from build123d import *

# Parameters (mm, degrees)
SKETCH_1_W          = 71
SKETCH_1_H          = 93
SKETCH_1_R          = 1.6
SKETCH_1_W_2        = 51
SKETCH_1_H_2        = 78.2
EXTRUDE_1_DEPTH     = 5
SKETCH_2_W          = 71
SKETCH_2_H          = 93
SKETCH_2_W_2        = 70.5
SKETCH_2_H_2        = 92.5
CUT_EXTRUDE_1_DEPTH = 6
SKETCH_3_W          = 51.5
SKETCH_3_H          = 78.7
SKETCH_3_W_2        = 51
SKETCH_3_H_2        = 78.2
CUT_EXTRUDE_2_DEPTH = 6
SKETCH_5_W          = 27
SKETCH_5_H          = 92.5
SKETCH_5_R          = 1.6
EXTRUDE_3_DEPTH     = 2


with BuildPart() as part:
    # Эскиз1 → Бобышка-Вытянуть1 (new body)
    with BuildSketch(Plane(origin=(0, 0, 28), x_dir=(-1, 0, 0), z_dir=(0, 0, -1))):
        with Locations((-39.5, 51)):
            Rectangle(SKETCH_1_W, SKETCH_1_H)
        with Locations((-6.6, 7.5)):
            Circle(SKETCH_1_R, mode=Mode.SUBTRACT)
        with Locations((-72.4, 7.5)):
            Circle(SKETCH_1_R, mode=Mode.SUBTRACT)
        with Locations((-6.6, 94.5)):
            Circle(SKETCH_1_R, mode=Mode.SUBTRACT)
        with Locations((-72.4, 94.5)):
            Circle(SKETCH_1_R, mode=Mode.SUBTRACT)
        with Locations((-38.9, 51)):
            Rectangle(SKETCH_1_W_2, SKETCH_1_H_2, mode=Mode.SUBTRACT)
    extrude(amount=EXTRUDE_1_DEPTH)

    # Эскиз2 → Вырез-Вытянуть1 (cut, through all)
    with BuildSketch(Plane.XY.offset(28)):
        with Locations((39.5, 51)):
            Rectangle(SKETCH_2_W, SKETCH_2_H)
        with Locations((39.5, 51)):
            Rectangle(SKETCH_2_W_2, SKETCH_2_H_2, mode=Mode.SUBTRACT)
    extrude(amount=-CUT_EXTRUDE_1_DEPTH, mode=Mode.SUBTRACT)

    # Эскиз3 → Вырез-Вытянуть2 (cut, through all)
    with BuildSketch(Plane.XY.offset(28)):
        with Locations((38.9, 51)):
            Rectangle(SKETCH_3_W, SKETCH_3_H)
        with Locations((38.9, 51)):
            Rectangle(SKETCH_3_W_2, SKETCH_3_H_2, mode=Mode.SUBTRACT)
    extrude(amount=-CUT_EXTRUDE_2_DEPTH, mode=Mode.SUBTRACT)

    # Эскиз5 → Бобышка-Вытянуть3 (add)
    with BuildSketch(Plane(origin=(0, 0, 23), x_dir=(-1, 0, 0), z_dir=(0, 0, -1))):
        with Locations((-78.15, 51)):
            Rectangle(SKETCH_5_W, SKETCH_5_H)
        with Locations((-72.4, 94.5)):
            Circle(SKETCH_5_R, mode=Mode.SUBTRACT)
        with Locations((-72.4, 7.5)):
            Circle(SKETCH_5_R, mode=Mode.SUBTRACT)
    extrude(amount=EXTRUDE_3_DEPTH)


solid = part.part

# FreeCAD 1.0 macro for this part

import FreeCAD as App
import Part
import Sketcher
Q = App.Units.Quantity

doc = App.newDocument("Part")
params = doc.addObject("Spreadsheet::Sheet", "Params")
for row, (alias, value) in enumerate([
    ("sketch1_diameter", "3.2 mm"),
    ("sketch1_width", "71 mm"),
    ("sketch1_width2", "51 mm"),
    ("sketch1_height", "93 mm"),
    ("sketch1_height2", "78.2 mm"),
    ("pad1_length", "5 mm"),
    ("sketch2_width", "71 mm"),
    ("sketch2_height", "93 mm"),
    ("sketch2_width2", "70.5 mm"),
    ("sketch2_height2", "92.5 mm"),
    ("sketch3_width", "51 mm"),
    ("sketch3_width2", "51.5 mm"),
    ("sketch3_height", "78.7 mm"),
    ("sketch3_height2", "78.2 mm"),
    ("sketch4_diameter", "3.2 mm"),
    ("sketch4_width", "27 mm"),
    ("sketch4_height", "92.5 mm"),
    ("pad2_length", "2 mm"),
], start=1):
    params.set(f"A{row}", alias)
    params.set(f"B{row}", "=" + value)
    params.setAlias(f"B{row}", alias)

body = doc.addObject("PartDesign::Body", "Body")

# Sketch on XY plane
sketch1 = body.newObject("Sketcher::SketchObject", "Sketch")
sketch1.AttachmentSupport = (doc.getObject("XY_Plane"), [""])
sketch1.MapMode = "FlatFace"
sketch1.AttachmentOffset = App.Placement(App.Vector(0, 0, 28), App.Rotation())
sketch1.addGeometry([
    Part.LineSegment(App.Vector(75, 97.5, 0), App.Vector(75, 4.5, 0)),  # 0
    Part.LineSegment(App.Vector(75, 4.5, 0), App.Vector(4, 4.5, 0)),  # 1
    Part.LineSegment(App.Vector(4, 4.5, 0), App.Vector(4, 97.5, 0)),  # 2
    Part.LineSegment(App.Vector(4, 97.5, 0), App.Vector(75, 97.5, 0)),  # 3
    Part.Circle(App.Vector(72.4, 7.5, 0), App.Vector(0, 0, 1), 1.6),  # 4
    Part.Circle(App.Vector(6.6, 7.5, 0), App.Vector(0, 0, 1), 1.6),  # 5
    Part.Circle(App.Vector(72.4, 94.5, 0), App.Vector(0, 0, 1), 1.6),  # 6
    Part.LineSegment(App.Vector(13.4, 11.9, 0), App.Vector(64.4, 11.9, 0)),  # 7
    Part.LineSegment(App.Vector(64.4, 11.9, 0), App.Vector(64.4, 90.1, 0)),  # 8
    Part.LineSegment(App.Vector(64.4, 90.1, 0), App.Vector(13.4, 90.1, 0)),  # 9
    Part.LineSegment(App.Vector(13.4, 90.1, 0), App.Vector(13.4, 11.9, 0)),  # 10
    Part.Circle(App.Vector(6.6, 94.5, 0), App.Vector(0, 0, 1), 1.6),  # 11
], False)
sketch1.addConstraint([
    Sketcher.Constraint("Coincident", 0, 2, 1, 1),
    Sketcher.Constraint("Coincident", 1, 2, 2, 1),
    Sketcher.Constraint("Coincident", 2, 2, 3, 1),
    Sketcher.Constraint("Coincident", 3, 2, 0, 1),
    Sketcher.Constraint("Coincident", 7, 2, 8, 1),
    Sketcher.Constraint("Coincident", 8, 2, 9, 1),
    Sketcher.Constraint("Coincident", 9, 2, 10, 1),
    Sketcher.Constraint("Coincident", 10, 2, 7, 1),
    Sketcher.Constraint("Vertical", 0),
    Sketcher.Constraint("Horizontal", 1),
    Sketcher.Constraint("Vertical", 2),
    Sketcher.Constraint("Horizontal", 3),
    Sketcher.Constraint("Horizontal", 7),
    Sketcher.Constraint("Vertical", 8),
    Sketcher.Constraint("Horizontal", 9),
    Sketcher.Constraint("Vertical", 10),
    Sketcher.Constraint("Equal", 4, 5),
    Sketcher.Constraint("Equal", 5, 6),
    Sketcher.Constraint("Equal", 6, 11),
    Sketcher.Constraint("Horizontal", 4, 3, 5, 3),
    Sketcher.Constraint("Horizontal", 6, 3, 11, 3),
    Sketcher.Constraint("Vertical", 4, 3, 6, 3),
    Sketcher.Constraint("Vertical", 5, 3, 11, 3),
    Sketcher.Constraint("Diameter", 4, Q("3.2 mm")),
    Sketcher.Constraint("DistanceX", 1, 2, 1, 1, Q("71 mm")),
    Sketcher.Constraint("DistanceX", 7, 1, 7, 2, Q("51 mm")),
    Sketcher.Constraint("DistanceY", 0, 2, 0, 1, Q("93 mm")),
    Sketcher.Constraint("DistanceY", 8, 1, 8, 2, Q("78.2 mm")),
    Sketcher.Constraint("DistanceX", -1, 1, 0, 2, Q("75 mm")),
    Sketcher.Constraint("DistanceY", 4, 3, 6, 3, Q("87 mm")),
    Sketcher.Constraint("DistanceY", 0, 2, 4, 3, Q("3 mm")),
    Sketcher.Constraint("DistanceX", 7, 2, 4, 3, Q("8 mm")),
    Sketcher.Constraint("DistanceX", -1, 1, 4, 3, Q("72.4 mm")),
    Sketcher.Constraint("DistanceY", -1, 1, 4, 3, Q("7.5 mm")),
    Sketcher.Constraint("DistanceX", -1, 1, 5, 3, Q("6.6 mm")),
    Sketcher.Constraint("DistanceY", -1, 1, 7, 2, Q("11.9 mm")),
])
sketch1.setExpression("Constraints[23]", "Params.sketch1_diameter")
sketch1.setExpression("Constraints[24]", "Params.sketch1_width")
sketch1.setExpression("Constraints[25]", "Params.sketch1_width2")
sketch1.setExpression("Constraints[26]", "Params.sketch1_height")
sketch1.setExpression("Constraints[27]", "Params.sketch1_height2")
pad1 = body.newObject("PartDesign::Pad", "Pad")
pad1.Profile = sketch1
pad1.setExpression("Length", "Params.pad1_length")
pad1.Reversed = True

# Sketch on XY plane
sketch2 = body.newObject("Sketcher::SketchObject", "Sketch001")
sketch2.AttachmentSupport = (doc.getObject("XY_Plane"), [""])
sketch2.MapMode = "FlatFace"
sketch2.AttachmentOffset = App.Placement(App.Vector(0, 0, 28), App.Rotation())
sketch2.addGeometry([
    Part.LineSegment(App.Vector(4, 97.5, 0), App.Vector(4, 4.5, 0)),  # 0
    Part.LineSegment(App.Vector(4, 4.5, 0), App.Vector(75, 4.5, 0)),  # 1
    Part.LineSegment(App.Vector(75, 4.5, 0), App.Vector(75, 97.5, 0)),  # 2
    Part.LineSegment(App.Vector(75, 97.5, 0), App.Vector(4, 97.5, 0)),  # 3
    Part.LineSegment(App.Vector(74.75, 4.75, 0), App.Vector(4.25, 4.75, 0)),  # 4
    Part.LineSegment(App.Vector(4.25, 4.75, 0), App.Vector(4.25, 97.25, 0)),  # 5
    Part.LineSegment(App.Vector(4.25, 97.25, 0), App.Vector(74.75, 97.25, 0)),  # 6
    Part.LineSegment(App.Vector(74.75, 97.25, 0), App.Vector(74.75, 4.75, 0)),  # 7
], False)
sketch2.addConstraint([
    Sketcher.Constraint("Coincident", 0, 2, 1, 1),
    Sketcher.Constraint("Coincident", 1, 2, 2, 1),
    Sketcher.Constraint("Coincident", 2, 2, 3, 1),
    Sketcher.Constraint("Coincident", 3, 2, 0, 1),
    Sketcher.Constraint("Coincident", 4, 2, 5, 1),
    Sketcher.Constraint("Coincident", 5, 2, 6, 1),
    Sketcher.Constraint("Coincident", 6, 2, 7, 1),
    Sketcher.Constraint("Coincident", 7, 2, 4, 1),
    Sketcher.Constraint("Vertical", 0),
    Sketcher.Constraint("Horizontal", 1),
    Sketcher.Constraint("Vertical", 2),
    Sketcher.Constraint("Horizontal", 3),
    Sketcher.Constraint("Horizontal", 4),
    Sketcher.Constraint("Vertical", 5),
    Sketcher.Constraint("Horizontal", 6),
    Sketcher.Constraint("Vertical", 7),
    Sketcher.Constraint("DistanceX", 1, 1, 1, 2, Q("71 mm")),
    Sketcher.Constraint("DistanceY", 0, 2, 0, 1, Q("93 mm")),
    Sketcher.Constraint("DistanceX", 4, 2, 4, 1, Q("70.5 mm")),
    Sketcher.Constraint("DistanceY", 5, 1, 5, 2, Q("92.5 mm")),
    Sketcher.Constraint("DistanceX", -1, 1, 0, 2, Q("4 mm")),
    Sketcher.Constraint("DistanceY", -1, 1, 0, 2, Q("4.5 mm")),
    Sketcher.Constraint("DistanceX", -1, 1, 4, 2, Q("4.25 mm")),
    Sketcher.Constraint("DistanceY", -1, 1, 4, 2, Q("4.75 mm")),
])
sketch2.setExpression("Constraints[16]", "Params.sketch2_width")
sketch2.setExpression("Constraints[17]", "Params.sketch2_height")
sketch2.setExpression("Constraints[18]", "Params.sketch2_width2")
sketch2.setExpression("Constraints[19]", "Params.sketch2_height2")
pocket1 = body.newObject("PartDesign::Pocket", "Pocket")
pocket1.Profile = sketch2
pocket1.Type = "ThroughAll"

# Sketch on XY plane
sketch3 = body.newObject("Sketcher::SketchObject", "Sketch002")
sketch3.AttachmentSupport = (doc.getObject("XY_Plane"), [""])
sketch3.MapMode = "FlatFace"
sketch3.AttachmentOffset = App.Placement(App.Vector(0, 0, 28), App.Rotation())
sketch3.addGeometry([
    Part.LineSegment(App.Vector(13.15, 90.35, 0), App.Vector(13.15, 11.65, 0)),  # 0
    Part.LineSegment(App.Vector(13.15, 11.65, 0), App.Vector(64.65, 11.65, 0)),  # 1
    Part.LineSegment(App.Vector(64.65, 11.65, 0), App.Vector(64.65, 90.35, 0)),  # 2
    Part.LineSegment(App.Vector(64.65, 90.35, 0), App.Vector(13.15, 90.35, 0)),  # 3
    Part.LineSegment(App.Vector(64.4, 11.9, 0), App.Vector(13.4, 11.9, 0)),  # 4
    Part.LineSegment(App.Vector(13.4, 11.9, 0), App.Vector(13.4, 90.1, 0)),  # 5
    Part.LineSegment(App.Vector(13.4, 90.1, 0), App.Vector(64.4, 90.1, 0)),  # 6
    Part.LineSegment(App.Vector(64.4, 90.1, 0), App.Vector(64.4, 11.9, 0)),  # 7
], False)
sketch3.addConstraint([
    Sketcher.Constraint("Coincident", 0, 2, 1, 1),
    Sketcher.Constraint("Coincident", 1, 2, 2, 1),
    Sketcher.Constraint("Coincident", 2, 2, 3, 1),
    Sketcher.Constraint("Coincident", 3, 2, 0, 1),
    Sketcher.Constraint("Coincident", 4, 2, 5, 1),
    Sketcher.Constraint("Coincident", 5, 2, 6, 1),
    Sketcher.Constraint("Coincident", 6, 2, 7, 1),
    Sketcher.Constraint("Coincident", 7, 2, 4, 1),
    Sketcher.Constraint("Vertical", 0),
    Sketcher.Constraint("Horizontal", 1),
    Sketcher.Constraint("Vertical", 2),
    Sketcher.Constraint("Horizontal", 3),
    Sketcher.Constraint("Horizontal", 4),
    Sketcher.Constraint("Vertical", 5),
    Sketcher.Constraint("Horizontal", 6),
    Sketcher.Constraint("Vertical", 7),
    Sketcher.Constraint("DistanceX", 4, 2, 4, 1, Q("51 mm")),
    Sketcher.Constraint("DistanceX", 1, 1, 1, 2, Q("51.5 mm")),
    Sketcher.Constraint("DistanceY", 0, 2, 0, 1, Q("78.7 mm")),
    Sketcher.Constraint("DistanceY", 5, 1, 5, 2, Q("78.2 mm")),
    Sketcher.Constraint("DistanceX", -1, 1, 4, 2, Q("13.4 mm")),
    Sketcher.Constraint("DistanceY", -1, 1, 4, 2, Q("11.9 mm")),
    Sketcher.Constraint("DistanceX", -1, 1, 0, 2, Q("13.15 mm")),
    Sketcher.Constraint("DistanceY", -1, 1, 0, 2, Q("11.65 mm")),
])
sketch3.setExpression("Constraints[16]", "Params.sketch3_width")
sketch3.setExpression("Constraints[17]", "Params.sketch3_width2")
sketch3.setExpression("Constraints[18]", "Params.sketch3_height")
sketch3.setExpression("Constraints[19]", "Params.sketch3_height2")
pocket2 = body.newObject("PartDesign::Pocket", "Pocket001")
pocket2.Profile = sketch3
pocket2.Type = "ThroughAll"

# Sketch on XY plane
sketch4 = body.newObject("Sketcher::SketchObject", "Sketch003")
sketch4.AttachmentSupport = (doc.getObject("XY_Plane"), [""])
sketch4.MapMode = "FlatFace"
sketch4.AttachmentOffset = App.Placement(App.Vector(0, 0, 23), App.Rotation())
sketch4.addGeometry([
    Part.LineSegment(App.Vector(91.65, 97.25, 0), App.Vector(91.65, 4.75, 0)),  # 0
    Part.LineSegment(App.Vector(91.65, 4.75, 0), App.Vector(64.65, 4.75, 0)),  # 1
    Part.LineSegment(App.Vector(64.65, 4.75, 0), App.Vector(64.65, 97.25, 0)),  # 2
    Part.LineSegment(App.Vector(64.65, 97.25, 0), App.Vector(91.65, 97.25, 0)),  # 3
    Part.Circle(App.Vector(72.4, 7.5, 0), App.Vector(0, 0, 1), 1.6),  # 4
    Part.Circle(App.Vector(72.4, 94.5, 0), App.Vector(0, 0, 1), 1.6),  # 5
], False)
sketch4.addConstraint([
    Sketcher.Constraint("Coincident", 0, 2, 1, 1),
    Sketcher.Constraint("Coincident", 1, 2, 2, 1),
    Sketcher.Constraint("Coincident", 2, 2, 3, 1),
    Sketcher.Constraint("Coincident", 3, 2, 0, 1),
    Sketcher.Constraint("Vertical", 0),
    Sketcher.Constraint("Horizontal", 1),
    Sketcher.Constraint("Vertical", 2),
    Sketcher.Constraint("Horizontal", 3),
    Sketcher.Constraint("Equal", 4, 5),
    Sketcher.Constraint("Vertical", 4, 3, 5, 3),
    Sketcher.Constraint("Diameter", 4, Q("3.2 mm")),
    Sketcher.Constraint("DistanceX", 1, 2, 1, 1, Q("27 mm")),
    Sketcher.Constraint("DistanceY", 0, 2, 0, 1, Q("92.5 mm")),
    Sketcher.Constraint("DistanceY", 4, 3, 5, 3, Q("87 mm")),
    Sketcher.Constraint("DistanceX", -1, 1, 4, 3, Q("72.4 mm")),
    Sketcher.Constraint("DistanceY", -1, 1, 4, 3, Q("7.5 mm")),
    Sketcher.Constraint("DistanceX", -1, 1, 0, 2, Q("91.65 mm")),
    Sketcher.Constraint("DistanceY", -1, 1, 0, 2, Q("4.75 mm")),
])
sketch4.setExpression("Constraints[10]", "Params.sketch4_diameter")
sketch4.setExpression("Constraints[11]", "Params.sketch4_width")
sketch4.setExpression("Constraints[12]", "Params.sketch4_height")
pad2 = body.newObject("PartDesign::Pad", "Pad001")
pad2.Profile = sketch4
pad2.setExpression("Length", "Params.pad2_length")
pad2.Reversed = True

doc.recompute()
